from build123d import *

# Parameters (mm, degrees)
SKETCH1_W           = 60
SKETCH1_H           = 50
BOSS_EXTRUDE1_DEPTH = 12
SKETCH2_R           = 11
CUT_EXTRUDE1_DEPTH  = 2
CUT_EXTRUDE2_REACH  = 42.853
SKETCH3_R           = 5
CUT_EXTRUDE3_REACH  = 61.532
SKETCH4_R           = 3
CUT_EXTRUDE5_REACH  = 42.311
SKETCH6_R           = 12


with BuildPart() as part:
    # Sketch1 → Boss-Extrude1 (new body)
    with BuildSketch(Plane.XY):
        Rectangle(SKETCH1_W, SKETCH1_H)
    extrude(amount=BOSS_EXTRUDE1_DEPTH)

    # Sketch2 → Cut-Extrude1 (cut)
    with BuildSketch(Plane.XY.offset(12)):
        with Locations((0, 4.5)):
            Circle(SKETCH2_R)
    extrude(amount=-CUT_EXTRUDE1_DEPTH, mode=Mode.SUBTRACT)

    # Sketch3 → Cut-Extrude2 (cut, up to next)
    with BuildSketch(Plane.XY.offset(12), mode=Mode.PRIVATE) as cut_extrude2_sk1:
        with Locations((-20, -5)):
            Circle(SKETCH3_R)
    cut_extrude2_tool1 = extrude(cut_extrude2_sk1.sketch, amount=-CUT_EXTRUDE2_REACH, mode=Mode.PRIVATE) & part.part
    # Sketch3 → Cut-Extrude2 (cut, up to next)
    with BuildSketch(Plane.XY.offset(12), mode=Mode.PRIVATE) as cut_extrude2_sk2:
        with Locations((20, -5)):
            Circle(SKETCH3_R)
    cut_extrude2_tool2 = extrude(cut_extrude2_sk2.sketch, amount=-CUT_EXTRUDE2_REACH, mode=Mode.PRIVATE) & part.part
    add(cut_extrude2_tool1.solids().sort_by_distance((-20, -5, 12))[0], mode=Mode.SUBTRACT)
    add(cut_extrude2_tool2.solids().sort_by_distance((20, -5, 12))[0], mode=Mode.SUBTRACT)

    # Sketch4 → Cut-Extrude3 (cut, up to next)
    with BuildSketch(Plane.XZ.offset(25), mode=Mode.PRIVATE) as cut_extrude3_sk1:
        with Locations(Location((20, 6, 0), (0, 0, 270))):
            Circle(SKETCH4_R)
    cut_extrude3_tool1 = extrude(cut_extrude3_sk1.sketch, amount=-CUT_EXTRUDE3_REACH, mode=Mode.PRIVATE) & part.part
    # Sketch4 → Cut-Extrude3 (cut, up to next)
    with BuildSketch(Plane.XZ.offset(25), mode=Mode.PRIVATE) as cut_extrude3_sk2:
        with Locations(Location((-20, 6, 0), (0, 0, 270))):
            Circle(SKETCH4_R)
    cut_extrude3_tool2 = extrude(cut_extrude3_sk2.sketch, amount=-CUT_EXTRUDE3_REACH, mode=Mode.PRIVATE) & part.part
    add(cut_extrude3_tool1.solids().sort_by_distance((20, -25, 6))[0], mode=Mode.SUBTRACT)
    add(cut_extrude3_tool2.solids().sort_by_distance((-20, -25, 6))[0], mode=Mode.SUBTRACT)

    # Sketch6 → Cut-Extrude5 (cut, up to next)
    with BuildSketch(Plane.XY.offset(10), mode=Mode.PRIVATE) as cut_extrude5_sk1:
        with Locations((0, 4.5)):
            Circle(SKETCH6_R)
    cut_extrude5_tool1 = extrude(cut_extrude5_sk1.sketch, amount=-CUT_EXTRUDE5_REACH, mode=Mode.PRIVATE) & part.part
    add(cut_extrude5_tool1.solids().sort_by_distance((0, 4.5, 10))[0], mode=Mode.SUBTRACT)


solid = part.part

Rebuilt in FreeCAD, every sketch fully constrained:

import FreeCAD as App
import Part
import Sketcher
Q = App.Units.Quantity


def add_polygon(sketch, points):
    """Adds a closed chain of lines whose ends are joined by coincident constraints."""
    first, n = sketch.GeometryCount, len(points)
    for a, b in zip(points, points[1:] + points[:1]):
        sketch.addGeometry(Part.LineSegment(App.Vector(*a, 0), App.Vector(*b, 0)), False)
    for i in range(n):
        sketch.addConstraint(Sketcher.Constraint("Coincident", first + i, 2, first + (i + 1) % n, 1))

doc = App.newDocument("Part")
params = doc.addObject("Spreadsheet::Sheet", "Params")
for row, (alias, value) in enumerate([
    ("sketch1_width", "60 mm"),
    ("sketch1_height", "50 mm"),
    ("pad1_length", "12 mm"),
    ("sketch2_diameter", "22 mm"),
    ("pocket1_length", "2 mm"),
    ("sketch3_diameter", "10 mm"),
    ("sketch4_diameter", "10 mm"),
    ("sketch5_diameter", "6 mm"),
    ("sketch6_diameter", "6 mm"),
    ("sketch7_diameter", "24 mm"),
], start=1):
    params.set(f"A{row}", alias)
    params.set(f"B{row}", "=" + value)
    params.setAlias(f"B{row}", alias)

body = doc.addObject("PartDesign::Body", "Body")

sketch1 = body.newObject("Sketcher::SketchObject", "Sketch")
sketch1.AttachmentSupport = (doc.getObject("XY_Plane"), [""])
sketch1.MapMode = "FlatFace"
add_polygon(sketch1, [(-30, 25), (-30, -25), (30, -25), (30, 25)])
sketch1.addConstraint(Sketcher.Constraint("Vertical", 0))
sketch1.addConstraint(Sketcher.Constraint("Horizontal", 1))
sketch1.addConstraint(Sketcher.Constraint("Vertical", 2))
sketch1.addConstraint(Sketcher.Constraint("Horizontal", 3))
sketch1.addConstraint(Sketcher.Constraint("Symmetric", 0, 2, 2, 2, -1, 1))
sketch1.addConstraint(Sketcher.Constraint("DistanceX", 1, 1, 1, 2, Q("60 mm")))
sketch1.addConstraint(Sketcher.Constraint("DistanceY", 0, 2, 0, 1, Q("50 mm")))
sketch1.setExpression("Constraints[9]", "Params.sketch1_width")
sketch1.setExpression("Constraints[10]", "Params.sketch1_height")
pad1 = body.newObject("PartDesign::Pad", "Pad")
pad1.Profile = sketch1
pad1.setExpression("Length", "Params.pad1_length")

sketch2 = body.newObject("Sketcher::SketchObject", "Sketch001")
sketch2.AttachmentSupport = (doc.getObject("XY_Plane"), [""])
sketch2.MapMode = "FlatFace"
sketch2.AttachmentOffset = App.Placement(App.Vector(0, 0, 12), App.Rotation())
sketch2.addGeometry(Part.Circle(App.Vector(0, 4, 0), App.Vector(0, 0, 1), 11), False)
sketch2.addConstraint(Sketcher.Constraint("PointOnObject", 0, 3, -2))
sketch2.addConstraint(Sketcher.Constraint("Diameter", 0, Q("22 mm")))
sketch2.addConstraint(Sketcher.Constraint("DistanceY", -1, 1, 0, 3, Q("4.5 mm")))
sketch2.setExpression("Constraints[1]", "Params.sketch2_diameter")
pocket1 = body.newObject("PartDesign::Pocket", "Pocket")
pocket1.Profile = sketch2
pocket1.setExpression("Length", "Params.pocket1_length")

sketch3 = body.newObject("Sketcher::SketchObject", "Sketch002")
sketch3.AttachmentSupport = (doc.getObject("XY_Plane"), [""])
sketch3.MapMode = "FlatFace"
sketch3.AttachmentOffset = App.Placement(App.Vector(0, 0, 12), App.Rotation())
sketch3.addGeometry(Part.Circle(App.Vector(-20, -5, 0), App.Vector(0, 0, 1), 5), False)
sketch3.addConstraint(Sketcher.Constraint("Diameter", 0, Q("10 mm")))
sketch3.addConstraint(Sketcher.Constraint("DistanceX", 0, 3, -1, 1, Q("20 mm")))
sketch3.addConstraint(Sketcher.Constraint("DistanceY", 0, 3, -1, 1, Q("5 mm")))
sketch3.setExpression("Constraints[0]", "Params.sketch3_diameter")
pocket2 = body.newObject("PartDesign::Pocket", "Pocket001")
pocket2.Profile = sketch3
pocket2.Type = "UpToFirst"

sketch4 = body.newObject("Sketcher::SketchObject", "Sketch003")
sketch4.AttachmentSupport = (doc.getObject("XY_Plane"), [""])
sketch4.MapMode = "FlatFace"
sketch4.AttachmentOffset = App.Placement(App.Vector(0, 0, 12), App.Rotation())
sketch4.addGeometry(Part.Circle(App.Vector(20, -5, 0), App.Vector(0, 0, 1), 5), False)
sketch4.addConstraint(Sketcher.Constraint("Diameter", 0, Q("10 mm")))
sketch4.addConstraint(Sketcher.Constraint("DistanceX", -1, 1, 0, 3, Q("20 mm")))
sketch4.addConstraint(Sketcher.Constraint("DistanceY", 0, 3, -1, 1, Q("5 mm")))
sketch4.setExpression("Constraints[0]", "Params.sketch4_diameter")
pocket3 = body.newObject("PartDesign::Pocket", "Pocket002")
pocket3.Profile = sketch4
pocket3.Type = "UpToFirst"

sketch5 = body.newObject("Sketcher::SketchObject", "Sketch004")
sketch5.AttachmentSupport = (doc.getObject("XZ_Plane"), [""])
sketch5.MapMode = "FlatFace"
sketch5.AttachmentOffset = App.Placement(App.Vector(0, 0, 25), App.Rotation())
sketch5.addGeometry(Part.Circle(App.Vector(20, 6, 0), App.Vector(0, 0, 1), 3), False)
sketch5.addConstraint(Sketcher.Constraint("Diameter", 0, Q("6 mm")))
sketch5.addConstraint(Sketcher.Constraint("DistanceX", -1, 1, 0, 3, Q("20 mm")))
sketch5.addConstraint(Sketcher.Constraint("DistanceY", -1, 1, 0, 3, Q("6 mm")))
sketch5.setExpression("Constraints[0]", "Params.sketch5_diameter")
pocket4 = body.newObject("PartDesign::Pocket", "Pocket003")
pocket4.Profile = sketch5
pocket4.Type = "UpToFirst"

sketch6 = body.newObject("Sketcher::SketchObject", "Sketch005")
sketch6.AttachmentSupport = (doc.getObject("XZ_Plane"), [""])
sketch6.MapMode = "FlatFace"
sketch6.AttachmentOffset = App.Placement(App.Vector(0, 0, 25), App.Rotation())
sketch6.addGeometry(Part.Circle(App.Vector(-20, 6, 0), App.Vector(0, 0, 1), 3), False)
sketch6.addConstraint(Sketcher.Constraint("Diameter", 0, Q("6 mm")))
sketch6.addConstraint(Sketcher.Constraint("DistanceX", 0, 3, -1, 1, Q("20 mm")))
sketch6.addConstraint(Sketcher.Constraint("DistanceY", -1, 1, 0, 3, Q("6 mm")))
sketch6.setExpression("Constraints[0]", "Params.sketch6_diameter")
pocket5 = body.newObject("PartDesign::Pocket", "Pocket004")
pocket5.Profile = sketch6
pocket5.Type = "UpToFirst"

sketch7 = body.newObject("Sketcher::SketchObject", "Sketch006")
sketch7.AttachmentSupport = (doc.getObject("XY_Plane"), [""])
sketch7.MapMode = "FlatFace"
sketch7.AttachmentOffset = App.Placement(App.Vector(0, 0, 10), App.Rotation())
sketch7.addGeometry(Part.Circle(App.Vector(0, 4, 0), App.Vector(0, 0, 1), 12), False)
sketch7.addConstraint(Sketcher.Constraint("PointOnObject", 0, 3, -2))
sketch7.addConstraint(Sketcher.Constraint("Diameter", 0, Q("24 mm")))
sketch7.addConstraint(Sketcher.Constraint("DistanceY", -1, 1, 0, 3, Q("4.5 mm")))
sketch7.setExpression("Constraints[1]", "Params.sketch7_diameter")
pocket6 = body.newObject("PartDesign::Pocket", "Pocket005")
pocket6.Profile = sketch7
pocket6.Type = "UpToFirst"

doc.recompute()
